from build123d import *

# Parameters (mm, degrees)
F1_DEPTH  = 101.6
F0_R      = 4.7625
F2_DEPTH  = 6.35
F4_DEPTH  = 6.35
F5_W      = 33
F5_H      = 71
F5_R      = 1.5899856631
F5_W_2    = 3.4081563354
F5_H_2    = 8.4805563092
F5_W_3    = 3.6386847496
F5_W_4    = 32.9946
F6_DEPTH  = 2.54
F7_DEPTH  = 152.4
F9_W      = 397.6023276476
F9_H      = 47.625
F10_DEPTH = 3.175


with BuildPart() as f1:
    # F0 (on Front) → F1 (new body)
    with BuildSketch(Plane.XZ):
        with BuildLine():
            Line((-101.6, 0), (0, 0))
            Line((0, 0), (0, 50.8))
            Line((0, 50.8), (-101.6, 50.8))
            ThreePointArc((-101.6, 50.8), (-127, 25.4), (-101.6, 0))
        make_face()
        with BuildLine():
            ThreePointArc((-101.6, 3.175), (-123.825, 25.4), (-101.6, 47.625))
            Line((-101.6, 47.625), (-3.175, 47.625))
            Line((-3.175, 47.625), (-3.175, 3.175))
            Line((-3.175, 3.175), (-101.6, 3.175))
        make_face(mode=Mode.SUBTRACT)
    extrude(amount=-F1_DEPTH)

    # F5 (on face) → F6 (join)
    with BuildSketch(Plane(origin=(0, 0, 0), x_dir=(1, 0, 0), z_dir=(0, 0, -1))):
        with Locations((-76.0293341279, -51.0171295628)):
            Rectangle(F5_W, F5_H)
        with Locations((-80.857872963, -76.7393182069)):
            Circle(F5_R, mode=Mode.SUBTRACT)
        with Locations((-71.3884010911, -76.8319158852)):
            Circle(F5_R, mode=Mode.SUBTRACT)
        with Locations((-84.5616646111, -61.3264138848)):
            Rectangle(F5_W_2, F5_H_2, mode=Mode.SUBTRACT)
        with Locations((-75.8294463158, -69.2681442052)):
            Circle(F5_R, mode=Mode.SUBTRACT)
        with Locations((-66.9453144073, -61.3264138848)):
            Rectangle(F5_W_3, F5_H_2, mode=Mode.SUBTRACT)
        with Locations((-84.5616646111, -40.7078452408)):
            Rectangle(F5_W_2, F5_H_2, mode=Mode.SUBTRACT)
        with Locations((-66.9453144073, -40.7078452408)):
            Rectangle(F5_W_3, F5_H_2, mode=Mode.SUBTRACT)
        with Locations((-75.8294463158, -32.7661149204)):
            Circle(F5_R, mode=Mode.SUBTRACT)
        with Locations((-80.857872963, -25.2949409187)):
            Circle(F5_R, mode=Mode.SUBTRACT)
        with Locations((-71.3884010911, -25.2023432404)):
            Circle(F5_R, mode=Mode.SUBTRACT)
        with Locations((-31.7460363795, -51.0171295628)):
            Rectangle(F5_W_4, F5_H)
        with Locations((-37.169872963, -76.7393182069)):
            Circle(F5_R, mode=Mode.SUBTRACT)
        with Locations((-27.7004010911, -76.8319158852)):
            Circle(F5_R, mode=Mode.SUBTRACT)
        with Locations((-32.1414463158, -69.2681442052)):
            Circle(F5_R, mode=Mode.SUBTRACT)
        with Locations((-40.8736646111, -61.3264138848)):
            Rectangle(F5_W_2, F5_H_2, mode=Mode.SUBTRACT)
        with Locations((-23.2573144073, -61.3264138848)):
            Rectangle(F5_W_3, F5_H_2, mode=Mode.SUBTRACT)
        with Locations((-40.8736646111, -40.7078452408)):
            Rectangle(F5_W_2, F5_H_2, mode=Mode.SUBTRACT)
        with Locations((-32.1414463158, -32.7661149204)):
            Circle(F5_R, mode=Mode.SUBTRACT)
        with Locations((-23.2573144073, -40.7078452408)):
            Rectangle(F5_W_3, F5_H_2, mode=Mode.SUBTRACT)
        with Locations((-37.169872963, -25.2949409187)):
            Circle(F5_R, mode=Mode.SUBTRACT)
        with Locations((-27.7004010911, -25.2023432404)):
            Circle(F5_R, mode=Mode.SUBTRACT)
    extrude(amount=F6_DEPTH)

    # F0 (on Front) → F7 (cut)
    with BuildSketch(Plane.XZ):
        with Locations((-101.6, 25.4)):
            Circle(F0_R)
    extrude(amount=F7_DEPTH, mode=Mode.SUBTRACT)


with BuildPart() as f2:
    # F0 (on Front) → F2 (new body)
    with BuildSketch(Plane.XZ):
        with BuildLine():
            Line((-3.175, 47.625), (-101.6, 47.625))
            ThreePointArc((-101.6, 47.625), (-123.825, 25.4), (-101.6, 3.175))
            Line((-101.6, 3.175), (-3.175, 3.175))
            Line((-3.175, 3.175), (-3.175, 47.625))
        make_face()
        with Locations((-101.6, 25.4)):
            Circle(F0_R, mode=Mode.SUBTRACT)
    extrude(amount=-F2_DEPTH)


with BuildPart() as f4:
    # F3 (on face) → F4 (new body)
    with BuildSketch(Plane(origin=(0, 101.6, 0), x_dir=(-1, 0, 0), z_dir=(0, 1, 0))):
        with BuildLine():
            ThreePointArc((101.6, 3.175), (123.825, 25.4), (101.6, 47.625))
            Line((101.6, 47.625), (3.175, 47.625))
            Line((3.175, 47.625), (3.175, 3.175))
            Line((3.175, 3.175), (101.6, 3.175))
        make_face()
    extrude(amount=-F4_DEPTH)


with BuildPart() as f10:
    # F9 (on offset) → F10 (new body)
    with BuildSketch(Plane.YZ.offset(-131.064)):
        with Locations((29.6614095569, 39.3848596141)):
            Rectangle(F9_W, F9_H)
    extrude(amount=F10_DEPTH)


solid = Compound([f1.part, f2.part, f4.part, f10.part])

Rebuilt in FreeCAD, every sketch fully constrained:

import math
import FreeCAD as App
import Part
import Sketcher
from FreeCAD import Vector
Q = App.Units.Quantity


def add_polygon(sketch, points):
    """Adds a closed chain of lines whose ends are joined by coincident constraints."""
    first, n = sketch.GeometryCount, len(points)
    for a, b in zip(points, points[1:] + points[:1]):
        sketch.addGeometry(Part.LineSegment(App.Vector(*a, 0), App.Vector(*b, 0)), False)
    for i in range(n):
        sketch.addConstraint(Sketcher.Constraint("Coincident", first + i, 2, first + (i + 1) % n, 1))

doc = App.newDocument("Part")
body = doc.addObject("PartDesign::Body", "Body")

sketch1 = body.newObject("Sketcher::SketchObject", "Sketch")
sketch1.AttachmentSupport = (doc.getObject("XZ_Plane"), [""])
sketch1.MapMode = "FlatFace"
sketch1.addGeometry([
    Part.LineSegment(Vector(-101.6, 0, 0), Vector(0, 0, 0)),
    Part.LineSegment(Vector(0, 0, 0), Vector(0, 50.8, 0)),
    Part.LineSegment(Vector(0, 50.8, 0), Vector(-101.6, 50.8, 0)),
    Part.ArcOfCircle(Part.Circle(Vector(-101.6, 25.4, 0), Vector(0, 0, 1), 25.4), math.radians(90), math.radians(270)),
    Part.LineSegment(Vector(-3.175, 3.175, 0), Vector(-101.6, 3.175, 0)),
    Part.ArcOfCircle(Part.Circle(Vector(-101.6, 25.4, 0), Vector(0, 0, 1), 22.225), math.radians(90), math.radians(270)),
    Part.LineSegment(Vector(-101.6, 47.625, 0), Vector(-3.175, 47.625, 0)),
    Part.LineSegment(Vector(-3.175, 47.625, 0), Vector(-3.175, 3.175, 0)),
], False)
sketch1.addConstraint([
    Sketcher.Constraint("Coincident", 0, 2, 1, 1),
    Sketcher.Constraint("Coincident", 1, 2, 2, 1),
    Sketcher.Constraint("Tangent", 2, 2, 3, 1),
    Sketcher.Constraint("Tangent", 3, 2, 0, 1),
    Sketcher.Constraint("Tangent", 4, 2, 5, 2),
    Sketcher.Constraint("Tangent", 5, 1, 6, 1),
    Sketcher.Constraint("Coincident", 6, 2, 7, 1),
    Sketcher.Constraint("Coincident", 7, 2, 4, 1),
    Sketcher.Constraint("Horizontal", 0),
    Sketcher.Constraint("Vertical", 1),
    Sketcher.Constraint("Horizontal", 2),
    Sketcher.Constraint("Horizontal", 4),
    Sketcher.Constraint("Horizontal", 6),
    Sketcher.Constraint("Vertical", 7),
    Sketcher.Constraint("Coincident", 0, 2, -1, 1),
    Sketcher.Constraint("Coincident", 5, 3, 3, 3),
    Sketcher.Constraint("Radius", 3, Q("1 in")),
    Sketcher.Constraint("DistanceX", 0, 1, 0, 2, Q("4 in")),
    Sketcher.Constraint("Radius", 5, Q("0.875 in")),
    Sketcher.Constraint("DistanceX", 4, 2, 4, 1, Q("3.875 in")),
])
pad1 = body.newObject("PartDesign::Pad", "Pad")
pad1.Profile = sketch1
pad1.Length = Q("4 in")
pad1.Reversed = True

sketch2 = body.newObject("Sketcher::SketchObject", "Sketch001")
sketch2.AttachmentSupport = (doc.getObject("XY_Plane"), [""])
sketch2.MapMode = "FlatFace"
add_polygon(sketch2, [(-92.529334, 15.51713), (-92.529334, 86.51713), (-59.529334, 86.51713), (-59.529334, 15.51713)])
sketch2.addGeometry(Part.Circle(Vector(-80.857873, 76.739318, 0), Vector(0, 0, 1), 1.589986), False)
sketch2.addGeometry(Part.Circle(Vector(-75.829446, 69.268144, 0), Vector(0, 0, 1), 1.589986), False)
add_polygon(sketch2, [(-82.857586, 65.566692), (-86.265743, 65.566692), (-86.265743, 57.086136), (-82.857586, 57.086136)])
sketch2.addGeometry(Part.Circle(Vector(-71.388401, 76.831916, 0), Vector(0, 0, 1), 1.589986), False)
add_polygon(sketch2, [(-65.125972, 65.566692), (-68.764657, 65.566692), (-68.764657, 57.086136), (-65.125972, 57.086136)])
add_polygon(sketch2, [(-82.857586, 44.948123), (-86.265743, 44.948123), (-86.265743, 36.467567), (-82.857586, 36.467567)])
sketch2.addGeometry(Part.Circle(Vector(-75.829446, 32.766115, 0), Vector(0, 0, 1), 1.589986), False)
sketch2.addGeometry(Part.Circle(Vector(-80.857873, 25.294941, 0), Vector(0, 0, 1), 1.589986), False)
add_polygon(sketch2, [(-65.125972, 44.948123), (-68.764657, 44.948123), (-68.764657, 36.467567), (-65.125972, 36.467567)])
sketch2.addGeometry(Part.Circle(Vector(-71.388401, 25.202343, 0), Vector(0, 0, 1), 1.589986), False)
add_polygon(sketch2, [(-48.243336, 15.51713), (-48.243336, 86.51713), (-15.248736, 86.51713), (-15.248736, 15.51713)])
sketch2.addGeometry(Part.Circle(Vector(-37.169873, 76.739318, 0), Vector(0, 0, 1), 1.589986), False)
sketch2.addGeometry(Part.Circle(Vector(-32.141446, 69.268144, 0), Vector(0, 0, 1), 1.589986), False)
add_polygon(sketch2, [(-39.169586, 65.566692), (-42.577743, 65.566692), (-42.577743, 57.086136), (-39.169586, 57.086136)])
sketch2.addGeometry(Part.Circle(Vector(-27.700401, 76.831916, 0), Vector(0, 0, 1), 1.589986), False)
add_polygon(sketch2, [(-21.437972, 65.566692), (-25.076657, 65.566692), (-25.076657, 57.086136), (-21.437972, 57.086136)])
add_polygon(sketch2, [(-39.169586, 44.948123), (-42.577743, 44.948123), (-42.577743, 36.467567), (-39.169586, 36.467567)])
sketch2.addGeometry(Part.Circle(Vector(-32.141446, 32.766115, 0), Vector(0, 0, 1), 1.589986), False)
sketch2.addGeometry(Part.Circle(Vector(-37.169873, 25.294941, 0), Vector(0, 0, 1), 1.589986), False)
add_polygon(sketch2, [(-21.437972, 44.948123), (-25.076657, 44.948123), (-25.076657, 36.467567), (-21.437972, 36.467567)])
sketch2.addGeometry(Part.Circle(Vector(-27.700401, 25.202343, 0), Vector(0, 0, 1), 1.589986), False)
sketch2.addConstraint([
    Sketcher.Constraint("Vertical", 0),
    Sketcher.Constraint("Horizontal", 1),
    Sketcher.Constraint("Vertical", 2),
    Sketcher.Constraint("Horizontal", 3),
    Sketcher.Constraint("Horizontal", 6),
    Sketcher.Constraint("Vertical", 7),
    Sketcher.Constraint("Horizontal", 8),
    Sketcher.Constraint("Vertical", 9),
    Sketcher.Constraint("Horizontal", 11),
    Sketcher.Constraint("Vertical", 12),
    Sketcher.Constraint("Horizontal", 13),
    Sketcher.Constraint("Vertical", 14),
    Sketcher.Constraint("Horizontal", 15),
    Sketcher.Constraint("Vertical", 16),
    Sketcher.Constraint("Horizontal", 17),
    Sketcher.Constraint("Vertical", 18),
    Sketcher.Constraint("Horizontal", 21),
    Sketcher.Constraint("Vertical", 22),
    Sketcher.Constraint("Horizontal", 23),
    Sketcher.Constraint("Vertical", 24),
    Sketcher.Constraint("Vertical", 26),
    Sketcher.Constraint("Horizontal", 27),
    Sketcher.Constraint("Vertical", 28),
    Sketcher.Constraint("Horizontal", 29),
    Sketcher.Constraint("Horizontal", 32),
    Sketcher.Constraint("Vertical", 33),
    Sketcher.Constraint("Horizontal", 34),
    Sketcher.Constraint("Vertical", 35),
    Sketcher.Constraint("Horizontal", 37),
    Sketcher.Constraint("Vertical", 38),
    Sketcher.Constraint("Horizontal", 39),
    Sketcher.Constraint("Vertical", 40),
    Sketcher.Constraint("Horizontal", 41),
    Sketcher.Constraint("Vertical", 42),
    Sketcher.Constraint("Horizontal", 43),
    Sketcher.Constraint("Vertical", 44),
    Sketcher.Constraint("Horizontal", 47),
    Sketcher.Constraint("Vertical", 48),
    Sketcher.Constraint("Horizontal", 49),
    Sketcher.Constraint("Vertical", 50),
    Sketcher.Constraint("Equal", 4, 5),
    Sketcher.Constraint("Equal", 5, 10),
    Sketcher.Constraint("Equal", 10, 19),
    Sketcher.Constraint("Equal", 19, 20),
    Sketcher.Constraint("Equal", 20, 25),
    Sketcher.Constraint("Equal", 25, 30),
    Sketcher.Constraint("Equal", 30, 31),
    Sketcher.Constraint("Equal", 31, 36),
    Sketcher.Constraint("Equal", 36, 45),
    Sketcher.Constraint("Equal", 45, 46),
    Sketcher.Constraint("Equal", 46, 51),
    Sketcher.Constraint("Horizontal", 4, 3, 30, 3),
    Sketcher.Constraint("Horizontal", 5, 3, 31, 3),
    Sketcher.Constraint("Horizontal", 10, 3, 36, 3),
    Sketcher.Constraint("Horizontal", 19, 3, 45, 3),
    Sketcher.Constraint("Horizontal", 20, 3, 46, 3),
    Sketcher.Constraint("Horizontal", 25, 3, 51, 3),
    Sketcher.Constraint("Horizontal", 9, 2, 11, 2),
    Sketcher.Constraint("Horizontal", 8, 2, 12, 2),
    Sketcher.Constraint("Horizontal", 18, 2, 21, 2),
    Sketcher.Constraint("Horizontal", 17, 2, 22, 2),
    Sketcher.Constraint("Horizontal", 1, 2, 26, 2),
    Sketcher.Constraint("Horizontal", 3, 2, 28, 2),
    Sketcher.Constraint("Horizontal", 14, 2, 32, 2),
    Sketcher.Constraint("Horizontal", 13, 2, 33, 2),
    Sketcher.Constraint("Horizontal", 35, 2, 37, 2),
    Sketcher.Constraint("Horizontal", 34, 2, 38, 2),
    Sketcher.Constraint("Horizontal", 24, 2, 41, 2),
    Sketcher.Constraint("Horizontal", 23, 2, 42, 2),
    Sketcher.Constraint("Horizontal", 44, 2, 47, 2),
    Sketcher.Constraint("Horizontal", 43, 2, 48, 2),
    Sketcher.Constraint("Vertical", 5, 3, 19, 3),
    Sketcher.Constraint("Vertical", 4, 3, 20, 3),
    Sketcher.Constraint("Vertical", 10, 3, 25, 3),
    Sketcher.Constraint("Vertical", 31, 3, 45, 3),
    Sketcher.Constraint("Vertical", 30, 3, 46, 3),
    Sketcher.Constraint("Vertical", 36, 3, 51, 3),
    Sketcher.Constraint("Vertical", 7, 2, 15, 2),
    Sketcher.Constraint("Vertical", 9, 2, 17, 2),
    Sketcher.Constraint("Vertical", 12, 2, 21, 2),
    Sketcher.Constraint("Vertical", 14, 2, 23, 2),
    Sketcher.Constraint("Vertical", 33, 2, 41, 2),
    Sketcher.Constraint("Vertical", 35, 2, 43, 2),
    Sketcher.Constraint("Vertical", 38, 2, 47, 2),
    Sketcher.Constraint("Vertical", 40, 2, 49, 2),
    Sketcher.Constraint("Equal", 17, 32),
    Sketcher.Constraint("Equal", 23, 37),
    Sketcher.Constraint("Equal", 14, 16),
    Sketcher.Constraint("DistanceX", 27, 1, 27, 2, Q("1.299 in")),
    Sketcher.Constraint("DistanceX", 4, 3, 30, 3, Q("1.72 in")),
    Sketcher.Constraint("DistanceX", 5, 3, 31, 3, Q("1.72 in")),
    Sketcher.Constraint("DistanceX", 10, 3, 36, 3, Q("1.72 in")),
    Sketcher.Constraint("Diameter", 4, Q("3.179971 mm")),
    Sketcher.Constraint("DistanceX", 1, 1, 1, 2, Q("33 mm")),
    Sketcher.Constraint("DistanceY", 0, 1, 0, 2, Q("71 mm")),
    Sketcher.Constraint("DistanceX", 10, 3, -1, 1, Q("71.388401 mm")),
    Sketcher.Constraint("DistanceY", 19, 3, 10, 3, Q("44.065801 mm")),
    Sketcher.Constraint("DistanceY", 25, 3, 5, 3, Q("44.065801 mm")),
    Sketcher.Constraint("DistanceX", 6, 2, 6, 1, Q("3.408156 mm")),
    Sketcher.Constraint("DistanceX", 11, 2, 11, 1, Q("3.638685 mm")),
    Sketcher.Constraint("DistanceY", 7, 2, 7, 1, Q("8.480556 mm")),
    Sketcher.Constraint("DistanceY", -1, 1, 4, 3, Q("76.739318 mm")),
    Sketcher.Constraint("DistanceY", -1, 1, 20, 3, Q("25.294941 mm")),
    Sketcher.Constraint("DistanceY", -1, 1, 0, 2, Q("86.51713 mm")),
    Sketcher.Constraint("DistanceY", 5, 3, 10, 3, Q("7.563772 mm")),
    Sketcher.Constraint("DistanceX", 4, 3, 10, 3, Q("9.469472 mm")),
    Sketcher.Constraint("DistanceX", 0, 2, 4, 3, Q("11.671461 mm")),
    Sketcher.Constraint("DistanceX", 6, 2, 4, 3, Q("5.40787 mm")),
    Sketcher.Constraint("DistanceY", 7, 2, 5, 3, Q("12.182008 mm")),
    Sketcher.Constraint("DistanceX", 8, 2, 5, 3, Q("7.02814 mm")),
    Sketcher.Constraint("DistanceX", 5, 3, 11, 2, Q("7.06479 mm")),
    Sketcher.Constraint("DistanceY", 19, 3, 15, 2, Q("12.182008 mm")),
    Sketcher.Constraint("DistanceX", 26, 2, 31, 3, Q("16.10189 mm")),
    Sketcher.Constraint("DistanceX", 32, 2, 30, 3, Q("5.40787 mm")),
    Sketcher.Constraint("DistanceX", 31, 3, 37, 2, Q("7.06479 mm")),
    Sketcher.Constraint("DistanceY", -1, 1, 5, 3, Q("69.268144 mm")),
])
pad2 = body.newObject("PartDesign::Pad", "Pad001")
pad2.Profile = sketch2
pad2.Length = Q("0.1 in")
pad2.Reversed = True

sketch3 = body.newObject("Sketcher::SketchObject", "Sketch002")
sketch3.AttachmentSupport = (doc.getObject("XZ_Plane"), [""])
sketch3.MapMode = "FlatFace"
sketch3.addGeometry(Part.Circle(Vector(-101.6, 25.4, 0), Vector(0, 0, 1), 4.7625), False)
sketch3.addConstraint([
    Sketcher.Constraint("Diameter", 0, Q("0.375 in")),
    Sketcher.Constraint("DistanceX", 0, 3, -1, 1, Q("4 in")),
    Sketcher.Constraint("DistanceY", -1, 1, 0, 3, Q("1 in")),
])
pocket1 = body.newObject("PartDesign::Pocket", "Pocket")
pocket1.Profile = sketch3
pocket1.Length = Q("6 in")
pocket1.Reversed = True
body2 = doc.addObject("PartDesign::Body", "Body001")

sketch4 = body2.newObject("Sketcher::SketchObject", "Sketch003")
sketch4.AttachmentSupport = (doc.getObject("XZ_Plane001"), [""])
sketch4.MapMode = "FlatFace"
sketch4.addGeometry([
    Part.LineSegment(Vector(-3.175, 47.625, 0), Vector(-101.6, 47.625, 0)),
    Part.ArcOfCircle(Part.Circle(Vector(-101.6, 25.4, 0), Vector(0, 0, 1), 22.225), math.radians(90), math.radians(270)),
    Part.LineSegment(Vector(-101.6, 3.175, 0), Vector(-3.175, 3.175, 0)),
    Part.LineSegment(Vector(-3.175, 3.175, 0), Vector(-3.175, 47.625, 0)),
    Part.Circle(Vector(-101.6, 25.4, 0), Vector(0, 0, 1), 4.7625),
], False)
sketch4.addConstraint([
    Sketcher.Constraint("Tangent", 0, 2, 1, 1),
    Sketcher.Constraint("Tangent", 1, 2, 2, 1),
    Sketcher.Constraint("Coincident", 2, 2, 3, 1),
    Sketcher.Constraint("Coincident", 3, 2, 0, 1),
    Sketcher.Constraint("Horizontal", 0),
    Sketcher.Constraint("Horizontal", 2),
    Sketcher.Constraint("Vertical", 3),
    Sketcher.Constraint("Coincident", 4, 3, 1, 3),
    Sketcher.Constraint("Diameter", 4, Q("0.375 in")),
    Sketcher.Constraint("DistanceX", 1, 3, -1, 1, Q("4 in")),
    Sketcher.Constraint("DistanceY", -1, 1, 1, 3, Q("1 in")),
    Sketcher.Constraint("Radius", 1, Q("0.875 in")),
    Sketcher.Constraint("DistanceX", 0, 2, 0, 1, Q("3.875 in")),
])
pad3 = body2.newObject("PartDesign::Pad", "Pad002")
pad3.Profile = sketch4
pad3.Length = Q("0.25 in")
pad3.Reversed = True
body3 = doc.addObject("PartDesign::Body", "Body002")

sketch5 = body3.newObject("Sketcher::SketchObject", "Sketch004")
sketch5.AttachmentSupport = (doc.getObject("XZ_Plane002"), [""])
sketch5.MapMode = "FlatFace"
sketch5.AttachmentOffset = App.Placement(Vector(0, 0, -4 * 25.4), App.Rotation())
sketch5.addGeometry([
    Part.ArcOfCircle(Part.Circle(Vector(-101.6, 25.4, 0), Vector(0, 0, 1), 22.225), math.radians(90), math.radians(270)),
    Part.LineSegment(Vector(-101.6, 47.625, 0), Vector(-3.175, 47.625, 0)),
    Part.LineSegment(Vector(-3.175, 47.625, 0), Vector(-3.175, 3.175, 0)),
    Part.LineSegment(Vector(-3.175, 3.175, 0), Vector(-101.6, 3.175, 0)),
], False)
sketch5.addConstraint([
    Sketcher.Constraint("Tangent", 0, 1, 1, 1),
    Sketcher.Constraint("Coincident", 1, 2, 2, 1),
    Sketcher.Constraint("Coincident", 2, 2, 3, 1),
    Sketcher.Constraint("Tangent", 3, 2, 0, 2),
    Sketcher.Constraint("Horizontal", 1),
    Sketcher.Constraint("Vertical", 2),
    Sketcher.Constraint("Horizontal", 3),
    Sketcher.Constraint("DistanceX", 0, 3, -1, 1, Q("4 in")),
    Sketcher.Constraint("DistanceY", -1, 1, 0, 3, Q("1 in")),
    Sketcher.Constraint("Radius", 0, Q("0.875 in")),
    Sketcher.Constraint("DistanceX", 1, 1, 1, 2, Q("3.875 in")),
])
pad4 = body3.newObject("PartDesign::Pad", "Pad003")
pad4.Profile = sketch5
pad4.Length = Q("0.25 in")
body4 = doc.addObject("PartDesign::Body", "Body003")

sketch6 = body4.newObject("Sketcher::SketchObject", "Sketch005")
sketch6.AttachmentSupport = (doc.getObject("YZ_Plane003"), [""])
sketch6.MapMode = "FlatFace"
sketch6.AttachmentOffset = App.Placement(Vector(0, 0, -5.16 * 25.4), App.Rotation())
add_polygon(sketch6, [(-169.139754, 63.19736), (-169.139754, 15.57236), (228.462573, 15.57236), (228.462573, 63.19736)])
sketch6.addConstraint([
    Sketcher.Constraint("Vertical", 0),
    Sketcher.Constraint("Horizontal", 1),
    Sketcher.Constraint("Vertical", 2),
    Sketcher.Constraint("Horizontal", 3),
    Sketcher.Constraint("DistanceY", 0, 2, 0, 1, Q("1.875 in")),
    Sketcher.Constraint("DistanceX", 1, 1, 1, 2, Q("397.602328 mm")),
    Sketcher.Constraint("DistanceY", -1, 1, 0, 2, Q("15.57236 mm")),
    Sketcher.Constraint("DistanceX", 0, 2, -1, 1, Q("169.139754 mm")),
])
pad5 = body4.newObject("PartDesign::Pad", "Pad004")
pad5.Profile = sketch6
pad5.Length = Q("0.125 in")

doc.recompute()
